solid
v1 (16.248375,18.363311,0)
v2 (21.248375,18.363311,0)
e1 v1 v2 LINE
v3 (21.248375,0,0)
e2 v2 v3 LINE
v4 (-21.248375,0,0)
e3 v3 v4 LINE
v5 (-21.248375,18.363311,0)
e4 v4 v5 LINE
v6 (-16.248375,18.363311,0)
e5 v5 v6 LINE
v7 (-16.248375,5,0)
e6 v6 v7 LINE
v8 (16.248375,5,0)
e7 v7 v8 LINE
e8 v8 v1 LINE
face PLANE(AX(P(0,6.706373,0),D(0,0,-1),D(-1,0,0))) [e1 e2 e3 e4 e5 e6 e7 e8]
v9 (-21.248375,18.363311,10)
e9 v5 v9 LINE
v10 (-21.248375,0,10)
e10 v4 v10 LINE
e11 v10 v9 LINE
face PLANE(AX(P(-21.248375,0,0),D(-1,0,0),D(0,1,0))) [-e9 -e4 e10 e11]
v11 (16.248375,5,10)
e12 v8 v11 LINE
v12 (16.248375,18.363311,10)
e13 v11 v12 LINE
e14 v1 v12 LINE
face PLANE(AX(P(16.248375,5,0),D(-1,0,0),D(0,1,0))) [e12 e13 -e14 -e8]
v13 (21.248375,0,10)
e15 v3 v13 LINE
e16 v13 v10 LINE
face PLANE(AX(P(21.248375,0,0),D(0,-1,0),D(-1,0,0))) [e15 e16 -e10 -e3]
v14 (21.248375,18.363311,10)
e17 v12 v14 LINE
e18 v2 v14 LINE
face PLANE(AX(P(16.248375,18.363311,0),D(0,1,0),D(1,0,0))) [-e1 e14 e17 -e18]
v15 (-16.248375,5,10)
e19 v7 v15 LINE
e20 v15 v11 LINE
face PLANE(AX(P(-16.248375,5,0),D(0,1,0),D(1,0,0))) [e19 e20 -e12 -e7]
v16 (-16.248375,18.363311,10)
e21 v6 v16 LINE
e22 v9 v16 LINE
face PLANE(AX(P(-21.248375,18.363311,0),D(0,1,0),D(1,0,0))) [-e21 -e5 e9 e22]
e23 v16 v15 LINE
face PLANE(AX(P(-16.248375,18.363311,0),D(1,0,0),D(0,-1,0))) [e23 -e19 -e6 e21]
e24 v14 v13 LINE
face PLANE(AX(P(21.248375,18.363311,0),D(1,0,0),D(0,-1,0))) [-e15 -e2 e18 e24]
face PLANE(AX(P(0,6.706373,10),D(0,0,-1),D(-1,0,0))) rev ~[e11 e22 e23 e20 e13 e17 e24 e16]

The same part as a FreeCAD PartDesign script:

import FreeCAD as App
import Part
import Sketcher
from FreeCAD import Vector


def add_polygon(sketch, points):
    """Adds a closed chain of lines whose ends are joined by coincident constraints."""
    first, n = sketch.GeometryCount, len(points)
    for a, b in zip(points, points[1:] + points[:1]):
        sketch.addGeometry(Part.LineSegment(App.Vector(*a, 0), App.Vector(*b, 0)), False)
    for i in range(n):
        sketch.addConstraint(Sketcher.Constraint("Coincident", first + i, 2, first + (i + 1) % n, 1))

doc = App.newDocument("Part")
body = doc.addObject("PartDesign::Body", "Body")

# Sketch on XY plane
sketch1 = body.newObject("Sketcher::SketchObject", "Sketch")
sketch1.AttachmentSupport = (doc.getObject("XY_Plane"), [""])
sketch1.MapMode = "FlatFace"
add_polygon(sketch1, [(-21.248375, 18.363311), (-21.248375, 0), (21.248375, 0), (21.248375, 18.363311), (16.248375, 18.363311), (16.248375, 5), (-16.248375, 5), (-16.248375, 18.363311)])  # lines 0-7
sketch1.addConstraint([
    Sketcher.Constraint("Vertical", 0),
    Sketcher.Constraint("Horizontal", 1),
    Sketcher.Constraint("Vertical", 2),
    Sketcher.Constraint("Horizontal", 3),
    Sketcher.Constraint("Vertical", 4),
    Sketcher.Constraint("Horizontal", 5),
    Sketcher.Constraint("Vertical", 6),
    Sketcher.Constraint("Horizontal", 7),
    Sketcher.Constraint("Symmetric", 0, 2, 1, 2, -1, 1),
    Sketcher.Constraint("Symmetric", 3, 2, 6, 2, -2),
    Sketcher.Constraint("DistanceX", 3, 2, 3, 1, 5.0),
    Sketcher.Constraint("DistanceY", -1, 1, 4, 2, 5.0),
    Sketcher.Constraint("DistanceX", 1, 1, 1, 2, 42.49675),
    Sketcher.Constraint("DistanceY", 0, 2, 0, 1, 18.363311),
])
pad1 = body.newObject("PartDesign::Pad", "Pad")
pad1.Profile = sketch1
pad1.Length = 10

doc.recompute()
